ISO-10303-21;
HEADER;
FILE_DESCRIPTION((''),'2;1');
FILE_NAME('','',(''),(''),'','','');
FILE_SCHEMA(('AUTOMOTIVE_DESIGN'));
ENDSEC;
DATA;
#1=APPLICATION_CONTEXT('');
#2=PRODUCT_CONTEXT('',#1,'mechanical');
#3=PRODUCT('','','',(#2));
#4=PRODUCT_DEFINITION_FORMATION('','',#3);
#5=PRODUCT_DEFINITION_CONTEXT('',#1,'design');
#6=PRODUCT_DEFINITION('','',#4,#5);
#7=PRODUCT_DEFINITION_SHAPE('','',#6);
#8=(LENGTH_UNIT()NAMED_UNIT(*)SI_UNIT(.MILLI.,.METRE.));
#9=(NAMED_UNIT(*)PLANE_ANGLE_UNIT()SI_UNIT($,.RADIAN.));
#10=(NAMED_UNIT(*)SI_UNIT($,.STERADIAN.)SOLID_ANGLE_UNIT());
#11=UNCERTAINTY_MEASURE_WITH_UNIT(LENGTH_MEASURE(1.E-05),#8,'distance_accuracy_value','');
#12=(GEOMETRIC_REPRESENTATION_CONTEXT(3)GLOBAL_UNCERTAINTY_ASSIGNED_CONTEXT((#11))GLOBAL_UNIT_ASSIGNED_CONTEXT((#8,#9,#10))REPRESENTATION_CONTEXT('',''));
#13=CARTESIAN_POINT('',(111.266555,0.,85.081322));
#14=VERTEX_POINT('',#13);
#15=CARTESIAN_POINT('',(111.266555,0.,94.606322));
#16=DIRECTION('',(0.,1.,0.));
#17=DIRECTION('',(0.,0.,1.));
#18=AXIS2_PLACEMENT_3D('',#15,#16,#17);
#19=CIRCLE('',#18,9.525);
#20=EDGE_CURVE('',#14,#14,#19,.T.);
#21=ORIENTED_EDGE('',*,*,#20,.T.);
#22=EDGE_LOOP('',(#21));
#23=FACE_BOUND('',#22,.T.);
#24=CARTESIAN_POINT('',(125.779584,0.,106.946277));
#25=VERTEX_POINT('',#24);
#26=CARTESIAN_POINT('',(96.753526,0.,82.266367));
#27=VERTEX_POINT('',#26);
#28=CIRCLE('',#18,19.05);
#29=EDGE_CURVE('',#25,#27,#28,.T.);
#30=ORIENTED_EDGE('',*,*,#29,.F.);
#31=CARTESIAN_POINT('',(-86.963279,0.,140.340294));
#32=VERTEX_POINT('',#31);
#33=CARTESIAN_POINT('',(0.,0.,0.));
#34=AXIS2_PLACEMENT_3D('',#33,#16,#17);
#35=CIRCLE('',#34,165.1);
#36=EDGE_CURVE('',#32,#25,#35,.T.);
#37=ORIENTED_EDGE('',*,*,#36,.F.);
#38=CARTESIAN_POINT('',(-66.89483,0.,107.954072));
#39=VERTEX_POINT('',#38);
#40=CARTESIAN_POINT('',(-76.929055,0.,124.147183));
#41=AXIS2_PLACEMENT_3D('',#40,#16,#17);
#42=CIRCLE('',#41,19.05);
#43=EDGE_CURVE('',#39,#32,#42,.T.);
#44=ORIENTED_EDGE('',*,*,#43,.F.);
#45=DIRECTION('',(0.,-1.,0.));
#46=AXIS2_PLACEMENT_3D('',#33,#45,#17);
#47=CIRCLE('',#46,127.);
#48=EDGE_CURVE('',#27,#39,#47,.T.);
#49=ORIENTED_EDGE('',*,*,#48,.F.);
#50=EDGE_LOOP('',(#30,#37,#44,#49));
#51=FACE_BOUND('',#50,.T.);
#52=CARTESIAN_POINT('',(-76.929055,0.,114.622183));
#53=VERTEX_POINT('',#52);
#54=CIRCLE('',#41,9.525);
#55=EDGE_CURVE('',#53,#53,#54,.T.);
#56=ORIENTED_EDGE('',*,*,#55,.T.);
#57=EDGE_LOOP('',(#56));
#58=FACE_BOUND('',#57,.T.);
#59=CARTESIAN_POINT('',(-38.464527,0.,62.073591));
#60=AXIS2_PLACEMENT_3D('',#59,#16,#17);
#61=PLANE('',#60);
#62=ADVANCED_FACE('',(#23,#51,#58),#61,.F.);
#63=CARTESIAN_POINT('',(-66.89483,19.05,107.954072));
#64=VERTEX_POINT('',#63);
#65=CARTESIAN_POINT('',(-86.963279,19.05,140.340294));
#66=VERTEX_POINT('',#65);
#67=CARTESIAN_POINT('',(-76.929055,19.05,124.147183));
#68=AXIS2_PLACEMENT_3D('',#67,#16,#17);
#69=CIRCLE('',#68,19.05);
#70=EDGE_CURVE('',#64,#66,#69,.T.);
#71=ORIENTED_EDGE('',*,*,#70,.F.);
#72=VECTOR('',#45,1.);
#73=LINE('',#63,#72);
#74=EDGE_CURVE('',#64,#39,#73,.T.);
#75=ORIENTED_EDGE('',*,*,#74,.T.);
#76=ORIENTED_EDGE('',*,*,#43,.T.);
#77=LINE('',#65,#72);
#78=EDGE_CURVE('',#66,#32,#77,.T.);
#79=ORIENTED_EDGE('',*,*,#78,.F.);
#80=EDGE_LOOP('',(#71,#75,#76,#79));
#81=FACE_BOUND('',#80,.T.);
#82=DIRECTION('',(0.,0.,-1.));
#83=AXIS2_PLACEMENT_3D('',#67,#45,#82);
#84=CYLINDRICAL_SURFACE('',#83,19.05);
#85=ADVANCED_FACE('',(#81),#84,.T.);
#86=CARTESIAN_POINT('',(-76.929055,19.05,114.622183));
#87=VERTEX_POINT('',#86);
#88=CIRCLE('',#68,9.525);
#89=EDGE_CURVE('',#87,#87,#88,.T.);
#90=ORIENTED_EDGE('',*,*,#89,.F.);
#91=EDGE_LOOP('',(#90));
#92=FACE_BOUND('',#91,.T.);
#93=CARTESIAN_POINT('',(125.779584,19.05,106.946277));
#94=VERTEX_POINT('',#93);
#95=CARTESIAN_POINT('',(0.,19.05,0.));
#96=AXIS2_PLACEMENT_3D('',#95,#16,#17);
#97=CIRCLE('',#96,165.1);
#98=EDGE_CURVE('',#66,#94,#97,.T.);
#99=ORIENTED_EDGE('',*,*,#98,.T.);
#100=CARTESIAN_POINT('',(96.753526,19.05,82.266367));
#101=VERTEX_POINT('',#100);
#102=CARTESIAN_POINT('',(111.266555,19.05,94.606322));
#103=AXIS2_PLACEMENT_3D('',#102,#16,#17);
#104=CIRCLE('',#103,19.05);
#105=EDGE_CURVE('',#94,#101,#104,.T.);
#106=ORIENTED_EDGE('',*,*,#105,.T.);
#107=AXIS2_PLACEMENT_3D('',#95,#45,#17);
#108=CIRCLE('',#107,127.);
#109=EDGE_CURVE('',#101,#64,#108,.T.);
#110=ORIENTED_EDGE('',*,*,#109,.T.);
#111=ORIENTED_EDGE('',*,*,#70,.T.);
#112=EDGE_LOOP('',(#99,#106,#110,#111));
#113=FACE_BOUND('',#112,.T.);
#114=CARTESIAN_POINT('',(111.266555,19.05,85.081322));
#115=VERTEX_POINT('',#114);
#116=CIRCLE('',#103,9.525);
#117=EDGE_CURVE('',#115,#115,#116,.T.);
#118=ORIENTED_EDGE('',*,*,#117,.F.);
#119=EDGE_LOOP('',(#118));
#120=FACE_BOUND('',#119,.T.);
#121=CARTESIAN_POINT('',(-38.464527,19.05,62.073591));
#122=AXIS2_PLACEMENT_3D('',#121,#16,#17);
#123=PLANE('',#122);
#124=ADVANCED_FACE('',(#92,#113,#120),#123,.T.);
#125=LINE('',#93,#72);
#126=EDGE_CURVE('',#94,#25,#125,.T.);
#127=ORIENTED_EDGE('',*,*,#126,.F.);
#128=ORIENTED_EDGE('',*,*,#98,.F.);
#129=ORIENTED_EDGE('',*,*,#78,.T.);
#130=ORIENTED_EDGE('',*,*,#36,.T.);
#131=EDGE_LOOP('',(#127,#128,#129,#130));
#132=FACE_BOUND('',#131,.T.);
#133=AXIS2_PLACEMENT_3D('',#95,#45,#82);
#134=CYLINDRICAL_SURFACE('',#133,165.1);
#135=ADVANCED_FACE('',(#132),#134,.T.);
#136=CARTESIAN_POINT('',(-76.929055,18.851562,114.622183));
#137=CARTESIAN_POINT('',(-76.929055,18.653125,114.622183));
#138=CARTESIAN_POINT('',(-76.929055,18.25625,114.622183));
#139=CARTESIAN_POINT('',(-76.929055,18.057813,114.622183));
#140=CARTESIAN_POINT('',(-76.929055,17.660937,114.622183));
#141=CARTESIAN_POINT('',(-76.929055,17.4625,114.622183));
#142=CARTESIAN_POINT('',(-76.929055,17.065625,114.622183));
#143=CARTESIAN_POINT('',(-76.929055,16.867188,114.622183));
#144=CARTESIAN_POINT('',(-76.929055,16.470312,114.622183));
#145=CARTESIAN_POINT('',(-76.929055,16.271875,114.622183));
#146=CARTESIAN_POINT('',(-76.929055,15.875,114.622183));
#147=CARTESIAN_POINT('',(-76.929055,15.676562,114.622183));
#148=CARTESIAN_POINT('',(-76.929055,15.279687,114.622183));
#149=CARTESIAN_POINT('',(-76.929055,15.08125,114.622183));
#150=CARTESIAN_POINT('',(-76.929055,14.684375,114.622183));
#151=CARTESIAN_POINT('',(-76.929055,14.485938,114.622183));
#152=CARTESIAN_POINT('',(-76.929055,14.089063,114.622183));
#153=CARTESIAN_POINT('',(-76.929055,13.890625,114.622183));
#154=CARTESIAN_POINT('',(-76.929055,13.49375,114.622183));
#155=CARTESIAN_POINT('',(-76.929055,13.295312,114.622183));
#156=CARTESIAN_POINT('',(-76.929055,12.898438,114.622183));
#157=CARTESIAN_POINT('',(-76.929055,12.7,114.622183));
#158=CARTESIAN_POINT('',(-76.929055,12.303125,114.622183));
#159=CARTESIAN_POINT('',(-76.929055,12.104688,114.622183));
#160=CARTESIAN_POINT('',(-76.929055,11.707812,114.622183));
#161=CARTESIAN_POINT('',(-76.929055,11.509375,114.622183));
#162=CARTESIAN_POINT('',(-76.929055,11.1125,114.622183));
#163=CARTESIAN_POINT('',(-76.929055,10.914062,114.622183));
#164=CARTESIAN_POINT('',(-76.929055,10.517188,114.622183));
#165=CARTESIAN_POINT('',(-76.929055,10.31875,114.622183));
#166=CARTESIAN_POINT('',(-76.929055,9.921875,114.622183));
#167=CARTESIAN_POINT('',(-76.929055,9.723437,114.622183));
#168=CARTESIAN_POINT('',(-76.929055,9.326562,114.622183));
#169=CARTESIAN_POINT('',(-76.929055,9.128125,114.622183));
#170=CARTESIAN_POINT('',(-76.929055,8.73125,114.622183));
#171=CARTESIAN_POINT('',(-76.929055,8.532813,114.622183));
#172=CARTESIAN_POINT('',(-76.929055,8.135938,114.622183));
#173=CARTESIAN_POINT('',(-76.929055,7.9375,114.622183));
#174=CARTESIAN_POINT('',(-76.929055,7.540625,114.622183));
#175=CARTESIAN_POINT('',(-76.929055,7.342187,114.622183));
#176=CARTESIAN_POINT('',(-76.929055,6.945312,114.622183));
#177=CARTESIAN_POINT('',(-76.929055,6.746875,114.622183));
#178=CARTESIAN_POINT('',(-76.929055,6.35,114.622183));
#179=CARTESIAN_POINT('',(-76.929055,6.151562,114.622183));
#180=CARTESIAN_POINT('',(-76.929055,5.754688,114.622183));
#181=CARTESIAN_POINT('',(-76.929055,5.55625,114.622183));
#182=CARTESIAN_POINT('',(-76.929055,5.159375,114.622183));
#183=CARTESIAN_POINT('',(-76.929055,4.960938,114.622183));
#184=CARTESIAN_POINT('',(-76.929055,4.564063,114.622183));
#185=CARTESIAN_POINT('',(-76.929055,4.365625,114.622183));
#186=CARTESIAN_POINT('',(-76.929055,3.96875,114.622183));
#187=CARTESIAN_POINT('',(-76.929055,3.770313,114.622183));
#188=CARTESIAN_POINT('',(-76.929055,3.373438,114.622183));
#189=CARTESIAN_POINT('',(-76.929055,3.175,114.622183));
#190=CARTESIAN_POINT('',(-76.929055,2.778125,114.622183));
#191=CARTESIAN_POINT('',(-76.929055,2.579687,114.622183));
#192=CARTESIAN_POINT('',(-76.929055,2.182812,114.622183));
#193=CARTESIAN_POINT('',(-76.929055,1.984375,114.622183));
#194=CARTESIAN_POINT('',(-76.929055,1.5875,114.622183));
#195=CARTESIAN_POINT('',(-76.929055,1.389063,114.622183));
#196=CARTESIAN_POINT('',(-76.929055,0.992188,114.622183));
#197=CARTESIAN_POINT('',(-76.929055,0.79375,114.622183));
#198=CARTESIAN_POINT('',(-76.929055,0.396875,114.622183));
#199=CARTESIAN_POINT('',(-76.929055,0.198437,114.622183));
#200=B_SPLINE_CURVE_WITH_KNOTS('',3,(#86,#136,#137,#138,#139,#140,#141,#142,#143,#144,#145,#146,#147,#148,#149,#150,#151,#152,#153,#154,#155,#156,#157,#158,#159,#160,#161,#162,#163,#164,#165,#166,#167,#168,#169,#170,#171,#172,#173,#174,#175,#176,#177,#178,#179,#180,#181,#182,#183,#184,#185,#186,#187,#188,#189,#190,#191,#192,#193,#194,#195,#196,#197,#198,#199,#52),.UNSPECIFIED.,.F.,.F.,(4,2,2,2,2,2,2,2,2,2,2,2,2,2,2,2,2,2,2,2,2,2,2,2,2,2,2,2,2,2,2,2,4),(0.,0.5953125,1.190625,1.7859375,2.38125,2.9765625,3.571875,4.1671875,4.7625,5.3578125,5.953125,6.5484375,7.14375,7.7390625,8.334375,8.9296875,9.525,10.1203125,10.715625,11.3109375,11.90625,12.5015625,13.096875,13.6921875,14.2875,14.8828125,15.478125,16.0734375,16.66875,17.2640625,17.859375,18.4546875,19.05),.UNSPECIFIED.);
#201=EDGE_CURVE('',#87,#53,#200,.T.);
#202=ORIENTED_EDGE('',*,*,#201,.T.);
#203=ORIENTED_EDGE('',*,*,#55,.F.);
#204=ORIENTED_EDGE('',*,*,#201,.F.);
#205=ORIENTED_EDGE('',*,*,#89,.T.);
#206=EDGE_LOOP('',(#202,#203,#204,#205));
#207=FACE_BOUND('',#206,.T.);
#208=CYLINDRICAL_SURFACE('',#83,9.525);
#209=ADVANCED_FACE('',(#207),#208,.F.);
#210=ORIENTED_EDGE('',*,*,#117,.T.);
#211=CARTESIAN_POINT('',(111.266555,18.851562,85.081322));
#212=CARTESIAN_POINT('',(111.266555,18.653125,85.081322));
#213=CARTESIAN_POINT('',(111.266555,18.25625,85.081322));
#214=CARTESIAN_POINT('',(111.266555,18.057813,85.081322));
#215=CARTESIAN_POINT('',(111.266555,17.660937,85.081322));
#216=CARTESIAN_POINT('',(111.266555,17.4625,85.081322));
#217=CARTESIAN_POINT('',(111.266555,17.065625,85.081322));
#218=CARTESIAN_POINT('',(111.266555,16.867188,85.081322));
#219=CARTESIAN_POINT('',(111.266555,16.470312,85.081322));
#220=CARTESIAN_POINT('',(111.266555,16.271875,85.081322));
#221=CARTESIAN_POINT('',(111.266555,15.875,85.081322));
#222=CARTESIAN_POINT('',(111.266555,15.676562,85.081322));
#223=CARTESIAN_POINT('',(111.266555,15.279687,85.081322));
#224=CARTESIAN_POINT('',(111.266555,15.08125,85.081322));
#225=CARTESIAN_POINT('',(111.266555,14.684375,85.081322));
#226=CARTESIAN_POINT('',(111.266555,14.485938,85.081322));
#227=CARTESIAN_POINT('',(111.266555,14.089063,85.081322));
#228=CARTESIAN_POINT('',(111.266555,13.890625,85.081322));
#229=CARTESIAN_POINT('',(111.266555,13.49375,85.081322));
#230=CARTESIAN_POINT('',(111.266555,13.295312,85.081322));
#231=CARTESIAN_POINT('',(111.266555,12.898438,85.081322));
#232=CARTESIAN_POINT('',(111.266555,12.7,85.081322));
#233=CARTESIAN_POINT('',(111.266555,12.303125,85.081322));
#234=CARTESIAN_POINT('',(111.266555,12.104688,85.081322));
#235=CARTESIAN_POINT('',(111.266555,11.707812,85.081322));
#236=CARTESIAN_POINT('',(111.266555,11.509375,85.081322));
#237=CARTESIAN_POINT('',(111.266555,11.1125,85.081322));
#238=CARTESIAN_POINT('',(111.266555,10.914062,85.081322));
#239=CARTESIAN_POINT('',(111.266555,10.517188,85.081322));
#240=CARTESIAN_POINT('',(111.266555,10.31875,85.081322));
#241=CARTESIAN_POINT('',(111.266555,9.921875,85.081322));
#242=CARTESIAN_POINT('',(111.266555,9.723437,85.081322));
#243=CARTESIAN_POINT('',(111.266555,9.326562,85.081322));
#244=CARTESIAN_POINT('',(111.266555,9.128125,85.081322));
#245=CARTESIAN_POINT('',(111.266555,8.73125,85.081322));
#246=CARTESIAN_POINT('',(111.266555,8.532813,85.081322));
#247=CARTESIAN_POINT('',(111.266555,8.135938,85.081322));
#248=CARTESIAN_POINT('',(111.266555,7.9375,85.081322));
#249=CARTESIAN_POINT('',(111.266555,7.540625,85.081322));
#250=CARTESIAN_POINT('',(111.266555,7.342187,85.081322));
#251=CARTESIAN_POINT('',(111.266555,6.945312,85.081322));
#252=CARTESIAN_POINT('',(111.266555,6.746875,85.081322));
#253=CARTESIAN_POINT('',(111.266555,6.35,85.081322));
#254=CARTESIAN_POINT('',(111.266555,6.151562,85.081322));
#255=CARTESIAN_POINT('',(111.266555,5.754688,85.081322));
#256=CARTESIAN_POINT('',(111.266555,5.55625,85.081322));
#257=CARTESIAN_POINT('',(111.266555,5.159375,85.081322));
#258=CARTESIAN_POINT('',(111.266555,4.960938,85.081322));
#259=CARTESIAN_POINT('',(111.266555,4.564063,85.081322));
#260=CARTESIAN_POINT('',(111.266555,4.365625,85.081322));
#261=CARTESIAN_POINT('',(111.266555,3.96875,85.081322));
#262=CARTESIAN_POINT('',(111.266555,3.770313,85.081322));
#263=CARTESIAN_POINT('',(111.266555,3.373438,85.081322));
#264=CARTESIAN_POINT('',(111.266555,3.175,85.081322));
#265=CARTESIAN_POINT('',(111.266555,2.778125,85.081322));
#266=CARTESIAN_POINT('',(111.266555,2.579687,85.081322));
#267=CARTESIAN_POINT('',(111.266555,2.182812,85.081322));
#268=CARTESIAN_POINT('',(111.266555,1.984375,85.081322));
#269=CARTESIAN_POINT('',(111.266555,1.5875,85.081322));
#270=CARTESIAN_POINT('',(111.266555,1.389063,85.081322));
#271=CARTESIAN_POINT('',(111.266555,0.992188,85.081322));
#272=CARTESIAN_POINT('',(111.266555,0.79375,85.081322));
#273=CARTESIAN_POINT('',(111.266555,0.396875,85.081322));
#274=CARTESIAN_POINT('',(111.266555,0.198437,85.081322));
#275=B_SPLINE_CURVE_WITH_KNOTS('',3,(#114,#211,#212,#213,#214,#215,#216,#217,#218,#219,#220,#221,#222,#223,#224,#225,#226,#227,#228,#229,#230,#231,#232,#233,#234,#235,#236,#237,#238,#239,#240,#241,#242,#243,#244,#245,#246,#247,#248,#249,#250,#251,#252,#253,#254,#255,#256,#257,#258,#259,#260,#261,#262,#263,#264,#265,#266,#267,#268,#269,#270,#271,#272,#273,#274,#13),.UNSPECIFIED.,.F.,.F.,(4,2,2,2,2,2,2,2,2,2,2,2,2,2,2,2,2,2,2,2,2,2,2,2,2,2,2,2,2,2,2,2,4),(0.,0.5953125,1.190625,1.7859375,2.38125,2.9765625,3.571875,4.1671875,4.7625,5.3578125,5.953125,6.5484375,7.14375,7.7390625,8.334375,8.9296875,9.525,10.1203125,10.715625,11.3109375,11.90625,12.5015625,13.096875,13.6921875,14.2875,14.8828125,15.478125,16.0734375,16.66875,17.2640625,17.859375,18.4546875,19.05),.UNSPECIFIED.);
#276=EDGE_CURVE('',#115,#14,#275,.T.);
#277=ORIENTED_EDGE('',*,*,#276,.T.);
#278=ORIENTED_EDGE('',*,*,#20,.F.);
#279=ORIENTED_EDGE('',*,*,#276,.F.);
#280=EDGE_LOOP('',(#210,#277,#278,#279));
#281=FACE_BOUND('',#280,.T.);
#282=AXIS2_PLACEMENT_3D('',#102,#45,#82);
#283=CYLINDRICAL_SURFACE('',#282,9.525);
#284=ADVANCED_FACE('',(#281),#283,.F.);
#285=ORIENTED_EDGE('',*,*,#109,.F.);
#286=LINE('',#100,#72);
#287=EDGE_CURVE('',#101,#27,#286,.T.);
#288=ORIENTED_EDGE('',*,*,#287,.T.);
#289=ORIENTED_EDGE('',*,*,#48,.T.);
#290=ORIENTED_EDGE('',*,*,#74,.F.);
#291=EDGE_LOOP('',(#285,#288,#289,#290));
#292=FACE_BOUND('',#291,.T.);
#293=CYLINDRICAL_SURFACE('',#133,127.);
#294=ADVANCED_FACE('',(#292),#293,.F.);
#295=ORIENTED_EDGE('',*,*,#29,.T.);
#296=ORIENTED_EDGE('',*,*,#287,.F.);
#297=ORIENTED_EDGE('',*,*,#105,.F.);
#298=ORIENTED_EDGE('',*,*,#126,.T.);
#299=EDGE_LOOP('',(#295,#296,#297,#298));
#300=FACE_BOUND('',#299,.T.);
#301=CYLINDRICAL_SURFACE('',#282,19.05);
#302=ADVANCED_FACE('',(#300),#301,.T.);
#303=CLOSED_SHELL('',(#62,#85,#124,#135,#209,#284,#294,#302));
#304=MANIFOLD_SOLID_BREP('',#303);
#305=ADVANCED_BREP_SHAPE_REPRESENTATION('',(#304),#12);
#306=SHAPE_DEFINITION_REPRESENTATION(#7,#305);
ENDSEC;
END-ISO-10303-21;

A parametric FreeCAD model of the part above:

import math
import FreeCAD as App
import Part
import Sketcher

V = App.Vector
Q = App.Units.Quantity

doc = App.newDocument("Part")
params = doc.addObject("Spreadsheet::Sheet", "Params")
for row, (alias, value) in enumerate([
    ("sketch1_radius", "5 in"),
    ("sketch1_radius2", "6.5 in"),
    ("sketch1_diameter", "0.75 in"),
    ("pad1_length", "0.75 in"),
], start=1):
    params.set(f"A{row}", alias)
    params.set(f"B{row}", "=" + value)
    params.setAlias(f"B{row}", alias)

body = doc.addObject("PartDesign::Body", "Body")

# Sketch on XZ plane
sketch1 = body.newObject("Sketcher::SketchObject", "Sketch")
sketch1.AttachmentSupport = (doc.getObject("XZ_Plane"), [""])
sketch1.MapMode = "FlatFace"
sketch1.addGeometry(Part.ArcOfCircle(Part.Circle(V(0, 0, 0), V(0, 0, 1), 165), math.radians(40), math.radians(122)), False)
sketch1.addGeometry(Part.ArcOfCircle(Part.Circle(V(111, 95, 0), V(0, 0, 1), 19), math.radians(-140), math.radians(40)), False)
sketch1.addGeometry(Part.ArcOfCircle(Part.Circle(V(0, 0, 0), V(0, 0, 1), 127), math.radians(40), math.radians(122)), False)
sketch1.addGeometry(Part.ArcOfCircle(Part.Circle(V(-77, 124, 0), V(0, 0, 1), 19), math.radians(122), math.radians(302)), False)
sketch1.addGeometry(Part.Circle(V(-77, 124, 0), V(0, 0, 1), 10), False)
sketch1.addGeometry(Part.Circle(V(111, 95, 0), V(0, 0, 1), 10), False)
sketch1.addConstraint(Sketcher.Constraint("Tangent", 0, 1, 1, 2))
sketch1.addConstraint(Sketcher.Constraint("Tangent", 1, 1, 2, 1))
sketch1.addConstraint(Sketcher.Constraint("Tangent", 2, 2, 3, 2))
sketch1.addConstraint(Sketcher.Constraint("Tangent", 3, 1, 0, 2))
sketch1.addConstraint(Sketcher.Constraint("Coincident", 0, 3, -1, 1))
sketch1.addConstraint(Sketcher.Constraint("Coincident", 2, 3, -1, 1))
sketch1.addConstraint(Sketcher.Constraint("Coincident", 4, 3, 3, 3))
sketch1.addConstraint(Sketcher.Constraint("Coincident", 5, 3, 1, 3))
sketch1.addConstraint(Sketcher.Constraint("Equal", 4, 5))
sketch1.addConstraint(Sketcher.Constraint("Radius", 2, Q("5 in")))
sketch1.addConstraint(Sketcher.Constraint("Radius", 0, Q("6.5 in")))
sketch1.addConstraint(Sketcher.Constraint("Diameter", 4, Q("0.75 in")))
sketch1.addConstraint(Sketcher.Constraint("DistanceX", 2, 2, -1, 1, Q("66.89483 mm")))
sketch1.addConstraint(Sketcher.Constraint("DistanceX", 3, 3, 1, 3, Q("188.19561 mm")))
sketch1.setExpression("Constraints[9]", "Params.sketch1_radius")
sketch1.setExpression("Constraints[10]", "Params.sketch1_radius2")
sketch1.setExpression("Constraints[11]", "Params.sketch1_diameter")
pad1 = body.newObject("PartDesign::Pad", "Pad")
pad1.Profile = sketch1
pad1.setExpression("Length", "Params.pad1_length")
pad1.Reversed = True

doc.recompute()
